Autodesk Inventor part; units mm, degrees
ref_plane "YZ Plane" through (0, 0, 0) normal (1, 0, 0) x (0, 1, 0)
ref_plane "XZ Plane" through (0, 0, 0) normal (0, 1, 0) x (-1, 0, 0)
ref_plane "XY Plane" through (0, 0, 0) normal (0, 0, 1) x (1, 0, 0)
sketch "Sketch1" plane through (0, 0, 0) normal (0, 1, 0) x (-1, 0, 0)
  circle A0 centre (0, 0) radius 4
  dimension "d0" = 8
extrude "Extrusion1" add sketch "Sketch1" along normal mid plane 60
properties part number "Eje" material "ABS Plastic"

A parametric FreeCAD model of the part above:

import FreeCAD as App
import Part
import Sketcher
Q = App.Units.Quantity

doc = App.newDocument("Part")
body = doc.addObject("PartDesign::Body", "Body")

# Sketch on XZ plane
sketch1 = doc.addObject("Sketcher::SketchObject", "Sketch")
body.addObject(sketch1)
sketch1.AttachmentSupport = (doc.XZ_Plane, [""])
sketch1.MapMode = "FlatFace"
sketch1.addGeometry(Part.Circle(App.Vector(0, 0, 0), App.Vector(0, 0, 1), 4), False)
sketch1.addConstraint(Sketcher.Constraint("Coincident", 0, 3, -1, 1))
sketch1.addConstraint(Sketcher.Constraint("Diameter", 0, Q("8 mm")))
pad1 = doc.addObject("PartDesign::Pad", "Pad")
body.addObject(pad1)
pad1.Profile = sketch1
pad1.Length = 60
pad1.Midplane = True

doc.recompute()
